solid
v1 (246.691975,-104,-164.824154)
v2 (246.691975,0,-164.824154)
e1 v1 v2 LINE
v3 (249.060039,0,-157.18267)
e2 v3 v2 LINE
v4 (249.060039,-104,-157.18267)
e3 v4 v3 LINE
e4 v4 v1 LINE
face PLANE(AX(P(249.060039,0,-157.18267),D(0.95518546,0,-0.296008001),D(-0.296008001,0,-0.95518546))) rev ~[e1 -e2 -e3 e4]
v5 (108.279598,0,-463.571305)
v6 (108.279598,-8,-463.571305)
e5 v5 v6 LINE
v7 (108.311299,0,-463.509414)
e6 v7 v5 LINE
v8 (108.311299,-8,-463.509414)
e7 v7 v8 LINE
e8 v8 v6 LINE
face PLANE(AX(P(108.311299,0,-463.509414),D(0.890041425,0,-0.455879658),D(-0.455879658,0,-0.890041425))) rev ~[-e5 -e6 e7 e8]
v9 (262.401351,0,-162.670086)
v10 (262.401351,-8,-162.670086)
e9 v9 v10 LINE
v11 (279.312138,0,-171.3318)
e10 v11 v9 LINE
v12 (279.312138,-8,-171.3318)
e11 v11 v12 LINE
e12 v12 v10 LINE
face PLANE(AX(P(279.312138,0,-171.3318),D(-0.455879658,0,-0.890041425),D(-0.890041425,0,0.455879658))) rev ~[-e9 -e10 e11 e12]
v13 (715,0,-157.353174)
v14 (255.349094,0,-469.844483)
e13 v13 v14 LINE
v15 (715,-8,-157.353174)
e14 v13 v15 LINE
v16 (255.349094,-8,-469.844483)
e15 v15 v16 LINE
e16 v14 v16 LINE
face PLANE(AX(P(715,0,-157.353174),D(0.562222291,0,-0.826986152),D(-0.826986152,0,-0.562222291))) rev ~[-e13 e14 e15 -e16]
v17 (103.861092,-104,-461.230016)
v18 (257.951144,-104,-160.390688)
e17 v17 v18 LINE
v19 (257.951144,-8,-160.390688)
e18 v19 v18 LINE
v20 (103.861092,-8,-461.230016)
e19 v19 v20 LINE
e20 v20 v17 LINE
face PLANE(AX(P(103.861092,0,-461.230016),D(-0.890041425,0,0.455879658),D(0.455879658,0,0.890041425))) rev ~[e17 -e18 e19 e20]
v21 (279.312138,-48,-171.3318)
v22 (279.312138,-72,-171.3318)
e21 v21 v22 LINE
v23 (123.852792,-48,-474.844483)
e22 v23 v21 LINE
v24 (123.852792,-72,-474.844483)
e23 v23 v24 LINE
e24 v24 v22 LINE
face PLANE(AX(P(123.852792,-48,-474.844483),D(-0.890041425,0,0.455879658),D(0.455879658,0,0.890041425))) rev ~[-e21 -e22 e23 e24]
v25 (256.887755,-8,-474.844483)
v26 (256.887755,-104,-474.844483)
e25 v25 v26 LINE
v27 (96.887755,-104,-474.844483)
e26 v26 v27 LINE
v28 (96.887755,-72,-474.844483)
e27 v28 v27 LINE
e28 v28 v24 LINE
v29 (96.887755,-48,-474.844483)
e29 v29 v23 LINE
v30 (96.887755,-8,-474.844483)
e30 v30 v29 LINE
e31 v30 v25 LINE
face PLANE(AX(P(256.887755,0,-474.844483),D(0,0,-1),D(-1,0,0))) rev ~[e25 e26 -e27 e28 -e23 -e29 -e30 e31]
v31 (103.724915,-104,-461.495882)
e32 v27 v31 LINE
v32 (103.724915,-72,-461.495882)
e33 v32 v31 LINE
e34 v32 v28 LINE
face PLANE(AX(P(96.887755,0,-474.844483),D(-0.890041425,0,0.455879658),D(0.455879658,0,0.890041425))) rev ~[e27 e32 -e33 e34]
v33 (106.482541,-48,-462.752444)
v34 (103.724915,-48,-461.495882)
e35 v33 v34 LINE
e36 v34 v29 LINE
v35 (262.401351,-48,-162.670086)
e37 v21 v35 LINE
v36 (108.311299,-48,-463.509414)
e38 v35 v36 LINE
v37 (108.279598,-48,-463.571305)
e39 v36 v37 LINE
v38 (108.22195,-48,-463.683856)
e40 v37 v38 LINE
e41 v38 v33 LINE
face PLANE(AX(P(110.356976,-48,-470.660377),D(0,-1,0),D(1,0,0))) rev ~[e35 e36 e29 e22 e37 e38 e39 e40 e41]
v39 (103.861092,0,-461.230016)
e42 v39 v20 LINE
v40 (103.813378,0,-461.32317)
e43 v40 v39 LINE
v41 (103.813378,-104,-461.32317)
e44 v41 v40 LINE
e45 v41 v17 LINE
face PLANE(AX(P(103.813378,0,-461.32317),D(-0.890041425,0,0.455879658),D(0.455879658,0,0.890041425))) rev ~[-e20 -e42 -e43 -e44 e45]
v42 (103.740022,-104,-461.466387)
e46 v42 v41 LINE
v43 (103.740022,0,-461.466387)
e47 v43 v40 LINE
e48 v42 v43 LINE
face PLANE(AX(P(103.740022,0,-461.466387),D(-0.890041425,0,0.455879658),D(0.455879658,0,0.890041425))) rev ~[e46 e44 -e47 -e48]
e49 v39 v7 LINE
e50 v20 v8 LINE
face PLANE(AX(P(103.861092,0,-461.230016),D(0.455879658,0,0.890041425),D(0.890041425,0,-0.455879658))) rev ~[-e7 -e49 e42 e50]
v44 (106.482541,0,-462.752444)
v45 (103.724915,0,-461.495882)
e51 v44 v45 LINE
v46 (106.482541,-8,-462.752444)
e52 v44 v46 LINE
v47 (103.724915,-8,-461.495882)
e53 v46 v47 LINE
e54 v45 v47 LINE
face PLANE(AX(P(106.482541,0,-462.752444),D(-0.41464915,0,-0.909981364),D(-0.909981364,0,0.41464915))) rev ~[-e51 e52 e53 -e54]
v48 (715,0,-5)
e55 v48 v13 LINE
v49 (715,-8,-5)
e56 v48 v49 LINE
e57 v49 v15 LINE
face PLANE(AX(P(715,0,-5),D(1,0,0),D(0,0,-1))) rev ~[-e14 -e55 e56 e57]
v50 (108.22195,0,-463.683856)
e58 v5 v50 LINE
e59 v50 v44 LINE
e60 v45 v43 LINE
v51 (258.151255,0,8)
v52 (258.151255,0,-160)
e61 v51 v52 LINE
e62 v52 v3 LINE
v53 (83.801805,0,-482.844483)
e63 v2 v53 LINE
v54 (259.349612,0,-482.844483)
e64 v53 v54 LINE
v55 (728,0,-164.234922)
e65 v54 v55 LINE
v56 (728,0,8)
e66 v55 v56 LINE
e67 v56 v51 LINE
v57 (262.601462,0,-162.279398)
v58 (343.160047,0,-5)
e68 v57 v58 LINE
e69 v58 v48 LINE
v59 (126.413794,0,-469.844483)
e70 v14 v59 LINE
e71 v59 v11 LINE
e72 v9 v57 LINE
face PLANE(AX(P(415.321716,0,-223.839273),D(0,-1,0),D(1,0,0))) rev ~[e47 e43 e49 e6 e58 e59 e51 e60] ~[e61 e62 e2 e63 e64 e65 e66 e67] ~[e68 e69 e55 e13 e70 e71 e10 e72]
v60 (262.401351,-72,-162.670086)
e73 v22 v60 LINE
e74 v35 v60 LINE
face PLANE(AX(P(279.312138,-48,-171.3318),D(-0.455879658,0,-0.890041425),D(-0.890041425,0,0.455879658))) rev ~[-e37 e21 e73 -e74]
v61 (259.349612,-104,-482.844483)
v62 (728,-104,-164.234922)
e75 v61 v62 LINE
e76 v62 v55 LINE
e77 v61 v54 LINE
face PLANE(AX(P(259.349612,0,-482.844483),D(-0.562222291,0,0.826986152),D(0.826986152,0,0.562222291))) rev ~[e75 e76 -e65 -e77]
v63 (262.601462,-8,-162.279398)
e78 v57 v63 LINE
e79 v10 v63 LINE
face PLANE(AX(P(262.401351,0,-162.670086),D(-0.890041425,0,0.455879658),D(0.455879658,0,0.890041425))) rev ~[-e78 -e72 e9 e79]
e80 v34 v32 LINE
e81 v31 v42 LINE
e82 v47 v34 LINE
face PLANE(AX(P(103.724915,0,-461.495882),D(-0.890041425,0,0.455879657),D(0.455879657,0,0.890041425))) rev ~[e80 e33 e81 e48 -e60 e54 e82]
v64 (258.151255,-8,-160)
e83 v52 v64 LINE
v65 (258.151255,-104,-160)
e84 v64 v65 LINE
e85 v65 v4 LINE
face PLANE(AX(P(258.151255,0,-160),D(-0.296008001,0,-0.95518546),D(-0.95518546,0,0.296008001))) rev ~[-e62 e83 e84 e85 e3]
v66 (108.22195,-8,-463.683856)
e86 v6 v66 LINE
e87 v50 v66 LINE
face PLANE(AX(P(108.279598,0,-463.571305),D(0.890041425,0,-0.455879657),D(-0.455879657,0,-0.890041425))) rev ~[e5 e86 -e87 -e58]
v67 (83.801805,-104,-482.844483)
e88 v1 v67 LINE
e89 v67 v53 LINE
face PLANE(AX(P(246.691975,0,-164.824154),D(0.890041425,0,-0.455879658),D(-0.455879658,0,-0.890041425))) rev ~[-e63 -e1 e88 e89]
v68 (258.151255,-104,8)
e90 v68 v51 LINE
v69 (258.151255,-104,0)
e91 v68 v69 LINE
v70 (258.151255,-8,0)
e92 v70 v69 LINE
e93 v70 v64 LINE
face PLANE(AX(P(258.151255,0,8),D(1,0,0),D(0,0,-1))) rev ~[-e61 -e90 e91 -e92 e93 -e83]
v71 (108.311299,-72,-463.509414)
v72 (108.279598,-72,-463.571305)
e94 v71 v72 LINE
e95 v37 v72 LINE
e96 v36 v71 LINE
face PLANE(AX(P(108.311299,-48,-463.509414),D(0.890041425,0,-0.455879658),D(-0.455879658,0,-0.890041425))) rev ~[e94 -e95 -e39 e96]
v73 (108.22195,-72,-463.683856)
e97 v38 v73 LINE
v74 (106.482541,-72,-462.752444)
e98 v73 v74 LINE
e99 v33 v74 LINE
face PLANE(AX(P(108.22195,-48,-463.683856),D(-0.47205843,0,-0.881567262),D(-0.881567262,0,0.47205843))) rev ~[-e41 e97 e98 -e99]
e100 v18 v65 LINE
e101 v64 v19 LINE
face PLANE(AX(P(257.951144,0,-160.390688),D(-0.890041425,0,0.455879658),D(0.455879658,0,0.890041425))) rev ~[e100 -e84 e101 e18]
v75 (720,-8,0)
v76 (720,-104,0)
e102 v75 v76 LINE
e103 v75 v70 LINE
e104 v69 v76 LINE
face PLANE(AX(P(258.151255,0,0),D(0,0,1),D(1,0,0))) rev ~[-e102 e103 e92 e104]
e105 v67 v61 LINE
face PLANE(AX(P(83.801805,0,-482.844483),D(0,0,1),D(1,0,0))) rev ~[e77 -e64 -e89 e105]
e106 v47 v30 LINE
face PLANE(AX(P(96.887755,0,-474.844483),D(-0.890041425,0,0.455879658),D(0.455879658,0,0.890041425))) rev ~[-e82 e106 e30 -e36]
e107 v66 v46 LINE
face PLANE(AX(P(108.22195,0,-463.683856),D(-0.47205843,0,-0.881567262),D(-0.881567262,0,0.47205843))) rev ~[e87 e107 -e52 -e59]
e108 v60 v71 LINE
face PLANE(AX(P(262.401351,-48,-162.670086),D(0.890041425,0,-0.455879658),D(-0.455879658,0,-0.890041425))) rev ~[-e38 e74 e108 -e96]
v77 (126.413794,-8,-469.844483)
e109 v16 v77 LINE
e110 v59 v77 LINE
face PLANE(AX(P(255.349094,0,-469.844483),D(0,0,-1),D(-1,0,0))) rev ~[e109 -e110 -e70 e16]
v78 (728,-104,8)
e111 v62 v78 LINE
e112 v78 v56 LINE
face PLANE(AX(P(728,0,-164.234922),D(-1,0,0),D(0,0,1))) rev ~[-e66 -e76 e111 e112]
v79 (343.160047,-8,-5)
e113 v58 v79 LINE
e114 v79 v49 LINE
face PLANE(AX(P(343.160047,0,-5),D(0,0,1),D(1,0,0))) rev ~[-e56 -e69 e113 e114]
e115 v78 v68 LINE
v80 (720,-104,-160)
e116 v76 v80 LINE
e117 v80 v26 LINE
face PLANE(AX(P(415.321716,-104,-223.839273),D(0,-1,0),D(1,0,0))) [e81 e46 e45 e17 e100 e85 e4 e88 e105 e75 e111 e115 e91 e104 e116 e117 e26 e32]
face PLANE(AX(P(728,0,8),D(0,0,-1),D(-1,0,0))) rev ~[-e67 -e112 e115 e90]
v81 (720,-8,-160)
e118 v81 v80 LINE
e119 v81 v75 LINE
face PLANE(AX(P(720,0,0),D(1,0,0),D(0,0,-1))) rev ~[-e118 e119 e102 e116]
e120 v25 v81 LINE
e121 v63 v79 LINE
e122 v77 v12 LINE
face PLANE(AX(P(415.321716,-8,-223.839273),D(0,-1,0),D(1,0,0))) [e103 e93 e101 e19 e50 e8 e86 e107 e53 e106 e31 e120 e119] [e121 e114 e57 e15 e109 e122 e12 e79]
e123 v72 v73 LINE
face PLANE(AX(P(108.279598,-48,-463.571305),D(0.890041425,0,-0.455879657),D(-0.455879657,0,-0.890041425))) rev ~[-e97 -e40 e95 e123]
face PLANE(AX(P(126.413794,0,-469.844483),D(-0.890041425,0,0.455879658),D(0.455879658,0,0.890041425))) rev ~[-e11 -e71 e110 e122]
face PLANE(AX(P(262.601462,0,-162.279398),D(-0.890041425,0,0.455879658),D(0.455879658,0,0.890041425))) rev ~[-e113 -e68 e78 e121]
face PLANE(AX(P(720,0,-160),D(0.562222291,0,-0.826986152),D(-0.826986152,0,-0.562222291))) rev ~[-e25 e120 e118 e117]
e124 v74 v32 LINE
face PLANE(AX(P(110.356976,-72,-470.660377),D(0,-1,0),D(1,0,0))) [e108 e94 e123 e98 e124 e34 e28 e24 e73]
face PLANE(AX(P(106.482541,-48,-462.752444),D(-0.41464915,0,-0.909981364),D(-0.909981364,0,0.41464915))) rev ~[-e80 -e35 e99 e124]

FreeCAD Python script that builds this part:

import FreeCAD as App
import Part
import Sketcher

V = App.Vector


def add_polygon(sketch, points):
    """Adds a closed chain of lines whose ends are joined by coincident constraints."""
    first, n = sketch.GeometryCount, len(points)
    for a, b in zip(points, points[1:] + points[:1]):
        sketch.addGeometry(Part.LineSegment(App.Vector(*a, 0), App.Vector(*b, 0)), False)
    for i in range(n):
        sketch.addConstraint(Sketcher.Constraint("Coincident", first + i, 2, first + (i + 1) % n, 1))

doc = App.newDocument("Part")
params = doc.addObject("Spreadsheet::Sheet", "Params")
for row, (alias, value) in enumerate([
    ("sketch1_height", "168 mm"),
    ("sketch1_length", "8 mm"),
    ("sketch1_length2", "5 mm"),
    ("sketch1_length3", "19 mm"),
    ("pad1_length", "8 mm"),
    ("sketch2_width", "160 mm"),
    ("sketch2_height", "8 mm"),
    ("sketch2_height2", "160 mm"),
    ("sketch2_length", "560 mm"),
    ("sketch2_length2", "8 mm"),
    ("pad2_length", "104 mm"),
    ("sketch3_length", "19 mm"),
    ("pad3_length", "24 mm"),
], start=1):
    params.set(f"A{row}", alias)
    params.set(f"B{row}", "=" + value)
    params.setAlias(f"B{row}", alias)

body = doc.addObject("PartDesign::Body", "Body")

# Sketch on XZ plane
sketch1 = body.newObject("Sketcher::SketchObject", "Sketch")
sketch1.AttachmentSupport = (doc.getObject("XZ_Plane"), [""])
sketch1.MapMode = "FlatFace"
add_polygon(sketch1, [(258.151, 8), (258.151, -160), (249.06, -157.183), (246.692, -164.824), (83.802, -482.844), (259.35, -482.844), (728, -164.235), (728, 8)])  # lines 0-7
add_polygon(sketch1, [(103.813, -461.323), (103.861, -461.23), (108.311, -463.509), (108.28, -463.571), (108.222, -463.684), (106.483, -462.752), (103.725, -461.496), (103.74, -461.466)])  # lines 8-15
add_polygon(sketch1, [(279.312, -171.332), (262.401, -162.67), (262.601, -162.279), (343.16, -5), (715, -5), (715, -157.353), (255.349, -469.844), (126.414, -469.844)])  # lines 16-23
sketch1.addConstraint([
    Sketcher.Constraint("Vertical", 0),
    Sketcher.Constraint("Horizontal", 4),
    Sketcher.Constraint("Vertical", 6),
    Sketcher.Constraint("Horizontal", 7),
    Sketcher.Constraint("Horizontal", 19),
    Sketcher.Constraint("Vertical", 20),
    Sketcher.Constraint("Horizontal", 22),
    Sketcher.Constraint("Perpendicular", 1, 2),
    Sketcher.Constraint("Parallel", 3, 8),
    Sketcher.Constraint("Perpendicular", 8, 9),
    Sketcher.Constraint("Perpendicular", 9, 10),
    Sketcher.Constraint("Parallel", 10, 11),
    Sketcher.Constraint("Parallel", 11, 14),
    Sketcher.Constraint("Parallel", 14, 15),
    Sketcher.Constraint("Perpendicular", 15, 16),
    Sketcher.Constraint("Perpendicular", 16, 17),
    Sketcher.Constraint("Perpendicular", 16, 18),
    Sketcher.Constraint("Parallel", 5, 21),
    Sketcher.Constraint("Parallel", 18, 23),
    Sketcher.Constraint("DistanceY", 0, 2, 0, 1, 168.0),
    Sketcher.Constraint("Distance", 2, 8.0),
    Sketcher.Constraint("Distance", 9, 5.0),
    Sketcher.Constraint("Distance", 16, 19.0),
    Sketcher.Constraint("DistanceY", 0, 2, -1, 1, 160.0),
    Sketcher.Constraint("DistanceX", -1, 1, 5, 2, 728.0),
    Sketcher.Constraint("DistanceY", 18, 2, -1, 1, 5.0),
    Sketcher.Constraint("DistanceX", -1, 1, 19, 2, 715.0),
    Sketcher.Constraint("DistanceY", 4, 2, 21, 2, 13.0),
    Sketcher.Constraint("DistanceX", 22, 2, 22, 1, 128.9353),
    Sketcher.Constraint("Distance", 18, 176.7102),
    Sketcher.Constraint("Distance", 23, 335.391898),
    Sketcher.Constraint("DistanceY", 6, 1, 6, 2, 172.234922),
    Sketcher.Constraint("DistanceX", -1, 1, 9, 2, 108.311299),
    Sketcher.Constraint("DistanceX", -1, 1, 10, 2, 108.279598),
    Sketcher.Constraint("DistanceY", 17, 2, -1, 1, 162.279398),
    Sketcher.Constraint("DistanceY", 23, 2, -1, 1, 171.3318),
    Sketcher.Constraint("DistanceX", 1, 2, 23, 2, 30.252099),
    Sketcher.Constraint("Distance", 1, 9.517749),
    Sketcher.Constraint("Distance", 3, 357.309582),
    Sketcher.Constraint("Distance", 5, 566.696779),
    Sketcher.Constraint("Distance", 13, 3.030421),
    Sketcher.Constraint("Distance", 14, 0.03314),
    Sketcher.Constraint("Distance", 15, 0.16091),
    Sketcher.Constraint("DistanceX", 4, 1, 4, 2, 175.547806),
    Sketcher.Constraint("DistanceX", -1, 1, 11, 2, 108.22195),
    Sketcher.Constraint("DistanceX", -1, 1, 12, 2, 106.482541),
    Sketcher.Constraint("DistanceY", 15, 2, -1, 1, 461.32317),
    Sketcher.Constraint("DistanceY", 8, 2, 2, 2, 296.405862),
])
sketch1.setExpression("Constraints[43]", "Params.sketch1_height")
sketch1.setExpression("Constraints[44]", "Params.sketch1_length")
sketch1.setExpression("Constraints[45]", "Params.sketch1_length2")
sketch1.setExpression("Constraints[46]", "Params.sketch1_length3")
pad1 = body.newObject("PartDesign::Pad", "Pad")
pad1.Profile = sketch1
pad1.setExpression("Length", "Params.pad1_length")

# Sketch on XZ plane
sketch2 = body.newObject("Sketcher::SketchObject", "Sketch001")
sketch2.AttachmentSupport = (doc.getObject("XZ_Plane"), [""])
sketch2.MapMode = "FlatFace"
add_polygon(sketch2, [(258.151255, 8), (258.151255, 0), (720, 0), (720, -160), (256.887755, -474.844483), (96.887755, -474.844483), (103.724915, -461.495882), (103.740022, -461.466387), (103.813378, -461.32317), (103.861092, -461.230016), (257.951144, -160.390688), (258.151255, -160), (249.060039, -157.18267), (246.691975, -164.824154), (83.801805, -482.844483), (259.349612, -482.844483), (728, -164.234922), (728, 8)])  # lines 0-17
sketch2.addConstraint([
    Sketcher.Constraint("Vertical", 0),
    Sketcher.Constraint("Horizontal", 1),
    Sketcher.Constraint("Vertical", 2),
    Sketcher.Constraint("Horizontal", 4),
    Sketcher.Constraint("Horizontal", 14),
    Sketcher.Constraint("Vertical", 16),
    Sketcher.Constraint("Horizontal", 17),
    Sketcher.Constraint("PointOnObject", 0, 2, -1),
    Sketcher.Constraint("DistanceX", 4, 2, 4, 1, 160.0),
    Sketcher.Constraint("DistanceY", 0, 2, 0, 1, 8.0),
    Sketcher.Constraint("DistanceY", 2, 2, 2, 1, 160.0),
    Sketcher.Constraint("Distance", 3, 560.0),
    Sketcher.Constraint("Distance", 12, 8.0),
    Sketcher.Constraint("DistanceX", -1, 1, 1, 2, 720.0),
    Sketcher.Constraint("DistanceY", 10, 2, -1, 1, 160.0),
    Sketcher.Constraint("DistanceX", -1, 1, 15, 2, 728.0),
    Sketcher.Constraint("DistanceY", 13, 2, 4, 2, 8.0),
    Sketcher.Constraint("DistanceY", 16, 1, 16, 2, 172.234922),
    Sketcher.Constraint("DistanceX", 3, 2, 0, 2, 1.2635),
    Sketcher.Constraint("DistanceY", 4, 2, 5, 2, 13.3486),
    Sketcher.Constraint("DistanceY", 6, 2, 9, 2, 301.075699),
    Sketcher.Constraint("DistanceX", 3, 2, 10, 2, 1.2635),
    Sketcher.Constraint("Distance", 5, 14.997729),
    Sketcher.Constraint("Distance", 6, 0.03314),
    Sketcher.Constraint("Distance", 7, 0.16091),
    Sketcher.Constraint("Distance", 11, 9.517749),
    Sketcher.Constraint("Distance", 13, 357.309582),
    Sketcher.Constraint("Distance", 15, 566.696779),
    Sketcher.Constraint("DistanceX", 1, 1, 1, 2, 461.848745),
    Sketcher.Constraint("DistanceX", 14, 1, 14, 2, 175.547806),
    Sketcher.Constraint("DistanceY", 7, 2, -1, 1, 461.32317),
    Sketcher.Constraint("DistanceX", -1, 1, 8, 2, 103.861092),
    Sketcher.Constraint("DistanceY", 9, 2, -1, 1, 160.390688),
    Sketcher.Constraint("DistanceX", -1, 1, 11, 2, 249.060039),
    Sketcher.Constraint("DistanceY", 6, 2, 8, 2, 0.236371),
    Sketcher.Constraint("DistanceX", 9, 2, 0, 2, 0.200111),
])
sketch2.setExpression("Constraints[26]", "Params.sketch2_width")
sketch2.setExpression("Constraints[27]", "Params.sketch2_height")
sketch2.setExpression("Constraints[28]", "Params.sketch2_height2")
sketch2.setExpression("Constraints[29]", "Params.sketch2_length")
sketch2.setExpression("Constraints[30]", "Params.sketch2_length2")
pad2 = body.newObject("PartDesign::Pad", "Pad001")
pad2.Profile = sketch2
pad2.setExpression("Length", "Params.pad2_length")

# Sketch on XZ plane
sketch3 = body.newObject("Sketcher::SketchObject", "Sketch002")
sketch3.AttachmentSupport = (doc.getObject("XZ_Plane"), [""])
sketch3.MapMode = "FlatFace"
sketch3.AttachmentOffset = App.Placement(V(0, 0, 48), App.Rotation())
add_polygon(sketch3, [(96.89, -474.84), (123.85, -474.84), (279.31, -171.33), (262.4, -162.67), (108.31, -463.51), (108.28, -463.57), (108.22, -463.68), (106.48, -462.75), (103.72, -461.5)])  # lines 0-8
sketch3.addConstraint([
    Sketcher.Constraint("Horizontal", 0),
    Sketcher.Constraint("Perpendicular", 1, 2),
    Sketcher.Constraint("Perpendicular", 2, 3),
    Sketcher.Constraint("Parallel", 3, 4),
    Sketcher.Constraint("Parallel", 4, 5),
    Sketcher.Constraint("Parallel", 5, 8),
    Sketcher.Constraint("Distance", 2, 19.0),
    Sketcher.Constraint("DistanceY", 1, 2, -1, 1, 171.3318),
    Sketcher.Constraint("DistanceX", -1, 1, 3, 2, 108.311299),
    Sketcher.Constraint("DistanceX", -1, 1, 4, 2, 108.279598),
    Sketcher.Constraint("DistanceX", 5, 2, 2, 2, 154.179402),
    Sketcher.Constraint("DistanceY", 0, 2, 7, 2, 13.3486),
    Sketcher.Constraint("Distance", 7, 3.030421),
    Sketcher.Constraint("Distance", 8, 14.997729),
    Sketcher.Constraint("DistanceX", 0, 1, 0, 2, 26.965037),
    Sketcher.Constraint("DistanceX", -1, 1, 0, 2, 123.852792),
    Sketcher.Constraint("DistanceX", -1, 1, 1, 2, 279.312138),
    Sketcher.Constraint("DistanceX", -1, 1, 6, 2, 106.482541),
])
sketch3.setExpression("Constraints[15]", "Params.sketch3_length")
pad3 = body.newObject("PartDesign::Pad", "Pad002")
pad3.Profile = sketch3
pad3.setExpression("Length", "Params.pad3_length")

doc.recompute()
